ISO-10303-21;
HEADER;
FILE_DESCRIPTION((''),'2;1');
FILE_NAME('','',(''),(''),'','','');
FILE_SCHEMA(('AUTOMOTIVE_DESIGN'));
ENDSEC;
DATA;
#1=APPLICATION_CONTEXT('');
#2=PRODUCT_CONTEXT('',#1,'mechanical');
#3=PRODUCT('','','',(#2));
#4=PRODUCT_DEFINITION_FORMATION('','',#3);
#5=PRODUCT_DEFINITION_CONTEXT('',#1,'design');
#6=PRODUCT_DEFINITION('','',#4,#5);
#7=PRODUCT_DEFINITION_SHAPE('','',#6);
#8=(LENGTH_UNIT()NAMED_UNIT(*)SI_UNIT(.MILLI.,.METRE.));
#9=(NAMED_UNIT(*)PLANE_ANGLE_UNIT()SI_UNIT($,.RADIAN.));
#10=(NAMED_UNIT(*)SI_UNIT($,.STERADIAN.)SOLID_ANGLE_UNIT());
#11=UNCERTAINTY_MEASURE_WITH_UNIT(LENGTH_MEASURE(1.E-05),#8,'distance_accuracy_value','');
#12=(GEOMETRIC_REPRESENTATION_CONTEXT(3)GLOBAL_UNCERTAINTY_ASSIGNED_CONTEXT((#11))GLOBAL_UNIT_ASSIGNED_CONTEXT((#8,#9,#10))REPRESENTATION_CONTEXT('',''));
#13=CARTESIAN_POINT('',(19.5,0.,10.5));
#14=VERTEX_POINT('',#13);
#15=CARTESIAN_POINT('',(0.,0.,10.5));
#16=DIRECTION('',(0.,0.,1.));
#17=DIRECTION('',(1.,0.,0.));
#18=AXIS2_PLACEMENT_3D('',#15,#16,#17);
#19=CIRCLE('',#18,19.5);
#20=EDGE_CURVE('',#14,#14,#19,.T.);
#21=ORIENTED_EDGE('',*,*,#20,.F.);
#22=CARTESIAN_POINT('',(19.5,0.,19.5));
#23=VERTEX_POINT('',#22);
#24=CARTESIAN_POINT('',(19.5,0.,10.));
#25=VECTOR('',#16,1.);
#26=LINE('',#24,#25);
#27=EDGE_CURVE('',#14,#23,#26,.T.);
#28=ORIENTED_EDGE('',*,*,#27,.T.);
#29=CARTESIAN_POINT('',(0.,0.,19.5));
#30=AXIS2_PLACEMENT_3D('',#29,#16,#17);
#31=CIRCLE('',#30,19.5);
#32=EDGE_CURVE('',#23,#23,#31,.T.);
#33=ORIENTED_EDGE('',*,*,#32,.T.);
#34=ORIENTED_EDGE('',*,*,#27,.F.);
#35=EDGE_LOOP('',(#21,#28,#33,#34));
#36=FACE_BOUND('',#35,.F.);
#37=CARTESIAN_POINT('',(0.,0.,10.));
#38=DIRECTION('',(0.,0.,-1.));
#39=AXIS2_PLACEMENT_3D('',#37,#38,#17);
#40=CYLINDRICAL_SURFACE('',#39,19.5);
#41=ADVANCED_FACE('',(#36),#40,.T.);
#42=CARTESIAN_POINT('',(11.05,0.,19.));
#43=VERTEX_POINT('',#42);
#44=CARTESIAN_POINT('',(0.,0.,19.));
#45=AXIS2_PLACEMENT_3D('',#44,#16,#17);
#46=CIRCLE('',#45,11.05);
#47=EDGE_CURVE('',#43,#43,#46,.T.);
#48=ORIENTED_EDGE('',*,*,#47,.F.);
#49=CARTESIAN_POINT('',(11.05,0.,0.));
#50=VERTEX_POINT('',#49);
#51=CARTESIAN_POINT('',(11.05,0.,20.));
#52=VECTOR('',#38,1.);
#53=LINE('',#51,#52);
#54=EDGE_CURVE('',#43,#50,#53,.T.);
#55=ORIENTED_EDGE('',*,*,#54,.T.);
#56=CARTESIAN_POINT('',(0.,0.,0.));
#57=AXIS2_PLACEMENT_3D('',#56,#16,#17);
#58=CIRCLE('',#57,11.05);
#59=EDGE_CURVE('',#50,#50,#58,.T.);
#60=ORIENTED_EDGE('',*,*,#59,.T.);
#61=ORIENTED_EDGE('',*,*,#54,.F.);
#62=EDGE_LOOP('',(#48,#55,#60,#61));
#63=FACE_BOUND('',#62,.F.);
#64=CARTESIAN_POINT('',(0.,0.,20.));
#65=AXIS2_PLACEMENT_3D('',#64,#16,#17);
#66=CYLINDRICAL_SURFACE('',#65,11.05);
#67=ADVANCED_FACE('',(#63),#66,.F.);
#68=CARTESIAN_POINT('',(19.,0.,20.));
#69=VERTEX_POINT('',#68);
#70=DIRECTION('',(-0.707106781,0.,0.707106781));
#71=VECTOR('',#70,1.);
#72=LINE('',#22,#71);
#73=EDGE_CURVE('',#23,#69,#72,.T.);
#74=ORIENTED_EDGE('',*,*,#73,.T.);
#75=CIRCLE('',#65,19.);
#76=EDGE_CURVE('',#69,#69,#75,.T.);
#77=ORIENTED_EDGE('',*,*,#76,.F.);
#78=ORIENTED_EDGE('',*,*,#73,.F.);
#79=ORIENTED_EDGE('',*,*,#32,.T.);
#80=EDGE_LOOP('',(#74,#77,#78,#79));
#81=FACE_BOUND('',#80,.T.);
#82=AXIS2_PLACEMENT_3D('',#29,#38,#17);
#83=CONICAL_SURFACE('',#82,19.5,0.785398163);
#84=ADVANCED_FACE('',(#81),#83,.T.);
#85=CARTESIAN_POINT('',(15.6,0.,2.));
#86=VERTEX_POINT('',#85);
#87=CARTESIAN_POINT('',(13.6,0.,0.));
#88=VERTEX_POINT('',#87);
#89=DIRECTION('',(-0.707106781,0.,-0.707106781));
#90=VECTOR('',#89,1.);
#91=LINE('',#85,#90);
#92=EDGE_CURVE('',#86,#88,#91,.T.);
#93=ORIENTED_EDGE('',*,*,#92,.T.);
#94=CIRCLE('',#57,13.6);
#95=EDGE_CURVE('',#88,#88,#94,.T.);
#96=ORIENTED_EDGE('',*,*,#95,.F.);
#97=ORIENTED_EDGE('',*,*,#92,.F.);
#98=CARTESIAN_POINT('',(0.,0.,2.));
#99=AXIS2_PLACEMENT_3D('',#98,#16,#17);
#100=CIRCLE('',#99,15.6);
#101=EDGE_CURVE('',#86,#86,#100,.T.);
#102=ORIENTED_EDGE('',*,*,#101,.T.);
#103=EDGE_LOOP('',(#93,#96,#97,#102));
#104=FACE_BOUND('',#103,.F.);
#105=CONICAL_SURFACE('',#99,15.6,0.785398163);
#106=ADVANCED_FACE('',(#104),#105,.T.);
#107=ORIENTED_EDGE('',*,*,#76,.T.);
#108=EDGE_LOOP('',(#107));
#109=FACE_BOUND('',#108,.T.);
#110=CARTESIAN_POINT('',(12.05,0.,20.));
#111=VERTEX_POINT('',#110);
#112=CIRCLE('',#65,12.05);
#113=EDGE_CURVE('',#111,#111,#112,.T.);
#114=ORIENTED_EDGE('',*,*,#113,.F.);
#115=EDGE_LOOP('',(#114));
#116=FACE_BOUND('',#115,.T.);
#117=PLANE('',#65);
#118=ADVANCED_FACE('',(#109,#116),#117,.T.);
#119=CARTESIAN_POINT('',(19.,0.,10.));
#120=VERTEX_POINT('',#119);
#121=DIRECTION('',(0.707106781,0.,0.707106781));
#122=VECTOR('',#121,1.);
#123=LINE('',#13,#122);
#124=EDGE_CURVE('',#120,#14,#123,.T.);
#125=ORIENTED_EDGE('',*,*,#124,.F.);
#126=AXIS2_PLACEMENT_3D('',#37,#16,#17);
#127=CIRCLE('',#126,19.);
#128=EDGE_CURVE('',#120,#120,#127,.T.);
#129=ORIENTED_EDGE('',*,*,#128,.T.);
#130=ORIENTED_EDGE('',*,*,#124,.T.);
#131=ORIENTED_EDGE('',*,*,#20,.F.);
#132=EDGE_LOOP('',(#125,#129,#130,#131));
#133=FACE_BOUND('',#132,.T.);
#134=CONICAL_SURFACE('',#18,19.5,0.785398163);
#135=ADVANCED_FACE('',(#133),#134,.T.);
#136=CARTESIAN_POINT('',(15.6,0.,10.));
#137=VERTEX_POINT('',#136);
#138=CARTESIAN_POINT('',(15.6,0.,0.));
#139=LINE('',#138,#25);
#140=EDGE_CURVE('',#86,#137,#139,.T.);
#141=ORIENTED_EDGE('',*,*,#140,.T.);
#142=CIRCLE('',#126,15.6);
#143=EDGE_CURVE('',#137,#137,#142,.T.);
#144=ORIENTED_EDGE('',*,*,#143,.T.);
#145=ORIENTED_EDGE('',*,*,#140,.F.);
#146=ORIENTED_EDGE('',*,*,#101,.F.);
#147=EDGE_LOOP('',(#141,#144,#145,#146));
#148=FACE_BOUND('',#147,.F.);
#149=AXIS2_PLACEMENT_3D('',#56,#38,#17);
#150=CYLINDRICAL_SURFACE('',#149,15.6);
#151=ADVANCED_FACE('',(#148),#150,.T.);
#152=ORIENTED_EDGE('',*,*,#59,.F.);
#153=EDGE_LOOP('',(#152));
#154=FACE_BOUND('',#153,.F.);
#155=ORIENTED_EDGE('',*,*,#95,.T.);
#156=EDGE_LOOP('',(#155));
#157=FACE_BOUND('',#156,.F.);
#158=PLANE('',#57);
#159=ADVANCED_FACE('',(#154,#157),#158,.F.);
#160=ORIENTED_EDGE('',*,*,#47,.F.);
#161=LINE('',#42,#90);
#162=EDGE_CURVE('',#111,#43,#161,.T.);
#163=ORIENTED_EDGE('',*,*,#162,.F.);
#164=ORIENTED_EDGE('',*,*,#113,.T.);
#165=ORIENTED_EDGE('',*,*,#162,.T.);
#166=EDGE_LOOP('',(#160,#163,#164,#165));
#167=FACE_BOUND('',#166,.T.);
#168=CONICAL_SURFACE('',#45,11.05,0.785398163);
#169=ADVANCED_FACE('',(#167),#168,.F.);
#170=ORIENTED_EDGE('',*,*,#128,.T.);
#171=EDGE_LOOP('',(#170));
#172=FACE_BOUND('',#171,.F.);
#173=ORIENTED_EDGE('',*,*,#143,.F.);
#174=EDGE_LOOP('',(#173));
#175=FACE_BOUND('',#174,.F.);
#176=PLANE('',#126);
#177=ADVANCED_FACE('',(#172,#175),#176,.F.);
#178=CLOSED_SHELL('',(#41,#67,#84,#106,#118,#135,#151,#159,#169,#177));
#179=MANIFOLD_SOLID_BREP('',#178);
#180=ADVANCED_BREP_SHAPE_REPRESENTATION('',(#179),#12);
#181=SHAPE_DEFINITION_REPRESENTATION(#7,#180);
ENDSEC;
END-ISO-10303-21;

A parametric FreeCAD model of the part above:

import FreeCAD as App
import Part
import Sketcher

V = App.Vector
Q = App.Units.Quantity


def edges_at(feature, points):
    """Names of the edges that pass closest to the given points."""
    edges = feature.Shape.Edges
    near = lambda p: min(range(len(edges)), key=lambda i: edges[i].distToShape(Part.Vertex(*p))[0])
    return sorted({f"Edge{near(p) + 1}" for p in points})

doc = App.newDocument("Part")
body = doc.addObject("PartDesign::Body", "Body")

# Sketch on XY plane
sketch1 = doc.addObject("Sketcher::SketchObject", "Sketch")
body.addObject(sketch1)
sketch1.AttachmentSupport = (doc.XY_Plane, [""])
sketch1.MapMode = "FlatFace"
sketch1.addGeometry(Part.Circle(V(0, 0, 0), V(0, 0, 1), 15.6), False)
sketch1.addConstraint(Sketcher.Constraint("Coincident", 0, 3, -1, 1))
sketch1.addConstraint(Sketcher.Constraint("Diameter", 0, Q("31.2 mm")))
pad1 = doc.addObject("PartDesign::Pad", "Pad")
body.addObject(pad1)
pad1.Profile = sketch1
pad1.Length = 10

# Sketch on XY plane
sketch2 = doc.addObject("Sketcher::SketchObject", "Sketch001")
body.addObject(sketch2)
sketch2.AttachmentSupport = (doc.XY_Plane, [""])
sketch2.MapMode = "FlatFace"
sketch2.AttachmentOffset = App.Placement(V(0, 0, 10), App.Rotation())
sketch2.addGeometry(Part.Circle(V(0, 0, 0), V(0, 0, 1), 19.5), False)
sketch2.addConstraint(Sketcher.Constraint("Coincident", 0, 3, -1, 1))
sketch2.addConstraint(Sketcher.Constraint("Diameter", 0, Q("39 mm")))
pad2 = doc.addObject("PartDesign::Pad", "Pad001")
body.addObject(pad2)
pad2.Profile = sketch2
pad2.Length = 10
doc.recompute()

chamfer = doc.addObject("PartDesign::Chamfer", "Chamfer")
body.addObject(chamfer)
chamfer.Base = (pad2, edges_at(pad2, [(-15.6, 0, 0)]))
chamfer.Size = 2
doc.recompute()

chamfer2 = doc.addObject("PartDesign::Chamfer", "Chamfer001")
body.addObject(chamfer2)
chamfer2.Base = (chamfer, edges_at(chamfer, [(-19.5, 0, 20), (-19.5, 0, 10)]))
chamfer2.Size = 0.5

# Sketch on XY plane
sketch3 = doc.addObject("Sketcher::SketchObject", "Sketch002")
body.addObject(sketch3)
sketch3.AttachmentSupport = (doc.XY_Plane, [""])
sketch3.MapMode = "FlatFace"
sketch3.AttachmentOffset = App.Placement(V(0, 0, 20), App.Rotation())
sketch3.addGeometry(Part.Circle(V(0, 0, 0), V(0, 0, 1), 11.05), False)
sketch3.addConstraint(Sketcher.Constraint("Coincident", 0, 3, -1, 1))
sketch3.addConstraint(Sketcher.Constraint("Diameter", 0, Q("22.1 mm")))
pocket1 = doc.addObject("PartDesign::Pocket", "Pocket")
body.addObject(pocket1)
pocket1.Profile = sketch3
pocket1.Type = "ThroughAll"
doc.recompute()

chamfer3 = doc.addObject("PartDesign::Chamfer", "Chamfer002")
body.addObject(chamfer3)
chamfer3.Base = (pocket1, edges_at(pocket1, [(-11.05, 0, 20)]))
chamfer3.Size = 1

doc.recompute()
